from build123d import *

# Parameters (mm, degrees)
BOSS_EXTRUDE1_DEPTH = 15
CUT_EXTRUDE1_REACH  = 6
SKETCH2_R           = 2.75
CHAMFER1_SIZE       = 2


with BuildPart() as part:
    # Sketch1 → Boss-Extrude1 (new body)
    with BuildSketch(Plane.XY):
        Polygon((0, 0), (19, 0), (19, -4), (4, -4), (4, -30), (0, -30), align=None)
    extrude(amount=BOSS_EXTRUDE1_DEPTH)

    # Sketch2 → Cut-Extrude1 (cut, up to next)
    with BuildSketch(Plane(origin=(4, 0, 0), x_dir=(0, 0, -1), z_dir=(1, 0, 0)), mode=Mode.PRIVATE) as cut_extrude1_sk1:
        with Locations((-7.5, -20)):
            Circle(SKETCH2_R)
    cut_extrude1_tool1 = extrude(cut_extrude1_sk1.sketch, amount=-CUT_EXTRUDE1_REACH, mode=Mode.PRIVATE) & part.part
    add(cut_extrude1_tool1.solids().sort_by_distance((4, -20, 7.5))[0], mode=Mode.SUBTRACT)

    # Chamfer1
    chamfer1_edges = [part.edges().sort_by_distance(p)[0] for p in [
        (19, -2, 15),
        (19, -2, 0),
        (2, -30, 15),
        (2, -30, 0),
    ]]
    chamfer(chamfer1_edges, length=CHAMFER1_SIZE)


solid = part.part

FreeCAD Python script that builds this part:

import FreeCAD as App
import Part
import Sketcher

V = App.Vector
Q = App.Units.Quantity


def edges_at(feature, points):
    """Names of the edges that pass closest to the given points."""
    edges = feature.Shape.Edges
    near = lambda p: min(range(len(edges)), key=lambda i: edges[i].distToShape(Part.Vertex(*p))[0])
    return sorted({f"Edge{near(p) + 1}" for p in points})


def add_polygon(sketch, points):
    """Adds a closed chain of lines whose ends are joined by coincident constraints."""
    first, n = sketch.GeometryCount, len(points)
    for a, b in zip(points, points[1:] + points[:1]):
        sketch.addGeometry(Part.LineSegment(App.Vector(*a, 0), App.Vector(*b, 0)), False)
    for i in range(n):
        sketch.addConstraint(Sketcher.Constraint("Coincident", first + i, 2, first + (i + 1) % n, 1))

doc = App.newDocument("Part")
body = doc.addObject("PartDesign::Body", "Body")

# Sketch on XY plane
sketch1 = body.newObject("Sketcher::SketchObject", "Sketch")
sketch1.AttachmentSupport = (doc.getObject("XY_Plane"), [""])
sketch1.MapMode = "FlatFace"
add_polygon(sketch1, [(19, 0), (0, 0), (0, -30), (4, -30), (4, -4), (19, -4)])  # lines 0-5
sketch1.addConstraint([
    Sketcher.Constraint("Horizontal", 0),
    Sketcher.Constraint("Vertical", 1),
    Sketcher.Constraint("Horizontal", 2),
    Sketcher.Constraint("Vertical", 3),
    Sketcher.Constraint("Horizontal", 4),
    Sketcher.Constraint("Vertical", 5),
    Sketcher.Constraint("Coincident", 0, 2, -1, 1),
    Sketcher.Constraint("Equal", 2, 5),
    Sketcher.Constraint("DistanceX", 0, 2, 0, 1, Q("19 mm")),
    Sketcher.Constraint("DistanceX", 2, 1, 2, 2, Q("4 mm")),
    Sketcher.Constraint("DistanceY", 1, 2, 1, 1, Q("30 mm")),
])
pad1 = body.newObject("PartDesign::Pad", "Pad")
pad1.Profile = sketch1
pad1.Length = 15

# Sketch on YZ plane
sketch2 = body.newObject("Sketcher::SketchObject", "Sketch001")
sketch2.AttachmentSupport = (doc.getObject("YZ_Plane"), [""])
sketch2.MapMode = "FlatFace"
sketch2.AttachmentOffset = App.Placement(V(0, 0, 4), App.Rotation())
sketch2.addGeometry(Part.Circle(V(-20, 7.5, 0), V(0, 0, 1), 2.75), False)
sketch2.addConstraint([
    Sketcher.Constraint("Diameter", 0, Q("5.5 mm")),
    Sketcher.Constraint("DistanceX", 0, 3, -1, 1, Q("20 mm")),
    Sketcher.Constraint("DistanceY", -1, 1, 0, 3, Q("7.5 mm")),
])
pocket1 = body.newObject("PartDesign::Pocket", "Pocket")
pocket1.Profile = sketch2
pocket1.Type = "UpToFirst"
doc.recompute()

chamfer = body.newObject("PartDesign::Chamfer", "Chamfer")
chamfer.Base = (pocket1, edges_at(pocket1, [
    (19, -2, 15),
    (19, -2, 0),
    (2, -30, 15),
    (2, -30, 0),
]))
chamfer.Size = 2

doc.recompute()
